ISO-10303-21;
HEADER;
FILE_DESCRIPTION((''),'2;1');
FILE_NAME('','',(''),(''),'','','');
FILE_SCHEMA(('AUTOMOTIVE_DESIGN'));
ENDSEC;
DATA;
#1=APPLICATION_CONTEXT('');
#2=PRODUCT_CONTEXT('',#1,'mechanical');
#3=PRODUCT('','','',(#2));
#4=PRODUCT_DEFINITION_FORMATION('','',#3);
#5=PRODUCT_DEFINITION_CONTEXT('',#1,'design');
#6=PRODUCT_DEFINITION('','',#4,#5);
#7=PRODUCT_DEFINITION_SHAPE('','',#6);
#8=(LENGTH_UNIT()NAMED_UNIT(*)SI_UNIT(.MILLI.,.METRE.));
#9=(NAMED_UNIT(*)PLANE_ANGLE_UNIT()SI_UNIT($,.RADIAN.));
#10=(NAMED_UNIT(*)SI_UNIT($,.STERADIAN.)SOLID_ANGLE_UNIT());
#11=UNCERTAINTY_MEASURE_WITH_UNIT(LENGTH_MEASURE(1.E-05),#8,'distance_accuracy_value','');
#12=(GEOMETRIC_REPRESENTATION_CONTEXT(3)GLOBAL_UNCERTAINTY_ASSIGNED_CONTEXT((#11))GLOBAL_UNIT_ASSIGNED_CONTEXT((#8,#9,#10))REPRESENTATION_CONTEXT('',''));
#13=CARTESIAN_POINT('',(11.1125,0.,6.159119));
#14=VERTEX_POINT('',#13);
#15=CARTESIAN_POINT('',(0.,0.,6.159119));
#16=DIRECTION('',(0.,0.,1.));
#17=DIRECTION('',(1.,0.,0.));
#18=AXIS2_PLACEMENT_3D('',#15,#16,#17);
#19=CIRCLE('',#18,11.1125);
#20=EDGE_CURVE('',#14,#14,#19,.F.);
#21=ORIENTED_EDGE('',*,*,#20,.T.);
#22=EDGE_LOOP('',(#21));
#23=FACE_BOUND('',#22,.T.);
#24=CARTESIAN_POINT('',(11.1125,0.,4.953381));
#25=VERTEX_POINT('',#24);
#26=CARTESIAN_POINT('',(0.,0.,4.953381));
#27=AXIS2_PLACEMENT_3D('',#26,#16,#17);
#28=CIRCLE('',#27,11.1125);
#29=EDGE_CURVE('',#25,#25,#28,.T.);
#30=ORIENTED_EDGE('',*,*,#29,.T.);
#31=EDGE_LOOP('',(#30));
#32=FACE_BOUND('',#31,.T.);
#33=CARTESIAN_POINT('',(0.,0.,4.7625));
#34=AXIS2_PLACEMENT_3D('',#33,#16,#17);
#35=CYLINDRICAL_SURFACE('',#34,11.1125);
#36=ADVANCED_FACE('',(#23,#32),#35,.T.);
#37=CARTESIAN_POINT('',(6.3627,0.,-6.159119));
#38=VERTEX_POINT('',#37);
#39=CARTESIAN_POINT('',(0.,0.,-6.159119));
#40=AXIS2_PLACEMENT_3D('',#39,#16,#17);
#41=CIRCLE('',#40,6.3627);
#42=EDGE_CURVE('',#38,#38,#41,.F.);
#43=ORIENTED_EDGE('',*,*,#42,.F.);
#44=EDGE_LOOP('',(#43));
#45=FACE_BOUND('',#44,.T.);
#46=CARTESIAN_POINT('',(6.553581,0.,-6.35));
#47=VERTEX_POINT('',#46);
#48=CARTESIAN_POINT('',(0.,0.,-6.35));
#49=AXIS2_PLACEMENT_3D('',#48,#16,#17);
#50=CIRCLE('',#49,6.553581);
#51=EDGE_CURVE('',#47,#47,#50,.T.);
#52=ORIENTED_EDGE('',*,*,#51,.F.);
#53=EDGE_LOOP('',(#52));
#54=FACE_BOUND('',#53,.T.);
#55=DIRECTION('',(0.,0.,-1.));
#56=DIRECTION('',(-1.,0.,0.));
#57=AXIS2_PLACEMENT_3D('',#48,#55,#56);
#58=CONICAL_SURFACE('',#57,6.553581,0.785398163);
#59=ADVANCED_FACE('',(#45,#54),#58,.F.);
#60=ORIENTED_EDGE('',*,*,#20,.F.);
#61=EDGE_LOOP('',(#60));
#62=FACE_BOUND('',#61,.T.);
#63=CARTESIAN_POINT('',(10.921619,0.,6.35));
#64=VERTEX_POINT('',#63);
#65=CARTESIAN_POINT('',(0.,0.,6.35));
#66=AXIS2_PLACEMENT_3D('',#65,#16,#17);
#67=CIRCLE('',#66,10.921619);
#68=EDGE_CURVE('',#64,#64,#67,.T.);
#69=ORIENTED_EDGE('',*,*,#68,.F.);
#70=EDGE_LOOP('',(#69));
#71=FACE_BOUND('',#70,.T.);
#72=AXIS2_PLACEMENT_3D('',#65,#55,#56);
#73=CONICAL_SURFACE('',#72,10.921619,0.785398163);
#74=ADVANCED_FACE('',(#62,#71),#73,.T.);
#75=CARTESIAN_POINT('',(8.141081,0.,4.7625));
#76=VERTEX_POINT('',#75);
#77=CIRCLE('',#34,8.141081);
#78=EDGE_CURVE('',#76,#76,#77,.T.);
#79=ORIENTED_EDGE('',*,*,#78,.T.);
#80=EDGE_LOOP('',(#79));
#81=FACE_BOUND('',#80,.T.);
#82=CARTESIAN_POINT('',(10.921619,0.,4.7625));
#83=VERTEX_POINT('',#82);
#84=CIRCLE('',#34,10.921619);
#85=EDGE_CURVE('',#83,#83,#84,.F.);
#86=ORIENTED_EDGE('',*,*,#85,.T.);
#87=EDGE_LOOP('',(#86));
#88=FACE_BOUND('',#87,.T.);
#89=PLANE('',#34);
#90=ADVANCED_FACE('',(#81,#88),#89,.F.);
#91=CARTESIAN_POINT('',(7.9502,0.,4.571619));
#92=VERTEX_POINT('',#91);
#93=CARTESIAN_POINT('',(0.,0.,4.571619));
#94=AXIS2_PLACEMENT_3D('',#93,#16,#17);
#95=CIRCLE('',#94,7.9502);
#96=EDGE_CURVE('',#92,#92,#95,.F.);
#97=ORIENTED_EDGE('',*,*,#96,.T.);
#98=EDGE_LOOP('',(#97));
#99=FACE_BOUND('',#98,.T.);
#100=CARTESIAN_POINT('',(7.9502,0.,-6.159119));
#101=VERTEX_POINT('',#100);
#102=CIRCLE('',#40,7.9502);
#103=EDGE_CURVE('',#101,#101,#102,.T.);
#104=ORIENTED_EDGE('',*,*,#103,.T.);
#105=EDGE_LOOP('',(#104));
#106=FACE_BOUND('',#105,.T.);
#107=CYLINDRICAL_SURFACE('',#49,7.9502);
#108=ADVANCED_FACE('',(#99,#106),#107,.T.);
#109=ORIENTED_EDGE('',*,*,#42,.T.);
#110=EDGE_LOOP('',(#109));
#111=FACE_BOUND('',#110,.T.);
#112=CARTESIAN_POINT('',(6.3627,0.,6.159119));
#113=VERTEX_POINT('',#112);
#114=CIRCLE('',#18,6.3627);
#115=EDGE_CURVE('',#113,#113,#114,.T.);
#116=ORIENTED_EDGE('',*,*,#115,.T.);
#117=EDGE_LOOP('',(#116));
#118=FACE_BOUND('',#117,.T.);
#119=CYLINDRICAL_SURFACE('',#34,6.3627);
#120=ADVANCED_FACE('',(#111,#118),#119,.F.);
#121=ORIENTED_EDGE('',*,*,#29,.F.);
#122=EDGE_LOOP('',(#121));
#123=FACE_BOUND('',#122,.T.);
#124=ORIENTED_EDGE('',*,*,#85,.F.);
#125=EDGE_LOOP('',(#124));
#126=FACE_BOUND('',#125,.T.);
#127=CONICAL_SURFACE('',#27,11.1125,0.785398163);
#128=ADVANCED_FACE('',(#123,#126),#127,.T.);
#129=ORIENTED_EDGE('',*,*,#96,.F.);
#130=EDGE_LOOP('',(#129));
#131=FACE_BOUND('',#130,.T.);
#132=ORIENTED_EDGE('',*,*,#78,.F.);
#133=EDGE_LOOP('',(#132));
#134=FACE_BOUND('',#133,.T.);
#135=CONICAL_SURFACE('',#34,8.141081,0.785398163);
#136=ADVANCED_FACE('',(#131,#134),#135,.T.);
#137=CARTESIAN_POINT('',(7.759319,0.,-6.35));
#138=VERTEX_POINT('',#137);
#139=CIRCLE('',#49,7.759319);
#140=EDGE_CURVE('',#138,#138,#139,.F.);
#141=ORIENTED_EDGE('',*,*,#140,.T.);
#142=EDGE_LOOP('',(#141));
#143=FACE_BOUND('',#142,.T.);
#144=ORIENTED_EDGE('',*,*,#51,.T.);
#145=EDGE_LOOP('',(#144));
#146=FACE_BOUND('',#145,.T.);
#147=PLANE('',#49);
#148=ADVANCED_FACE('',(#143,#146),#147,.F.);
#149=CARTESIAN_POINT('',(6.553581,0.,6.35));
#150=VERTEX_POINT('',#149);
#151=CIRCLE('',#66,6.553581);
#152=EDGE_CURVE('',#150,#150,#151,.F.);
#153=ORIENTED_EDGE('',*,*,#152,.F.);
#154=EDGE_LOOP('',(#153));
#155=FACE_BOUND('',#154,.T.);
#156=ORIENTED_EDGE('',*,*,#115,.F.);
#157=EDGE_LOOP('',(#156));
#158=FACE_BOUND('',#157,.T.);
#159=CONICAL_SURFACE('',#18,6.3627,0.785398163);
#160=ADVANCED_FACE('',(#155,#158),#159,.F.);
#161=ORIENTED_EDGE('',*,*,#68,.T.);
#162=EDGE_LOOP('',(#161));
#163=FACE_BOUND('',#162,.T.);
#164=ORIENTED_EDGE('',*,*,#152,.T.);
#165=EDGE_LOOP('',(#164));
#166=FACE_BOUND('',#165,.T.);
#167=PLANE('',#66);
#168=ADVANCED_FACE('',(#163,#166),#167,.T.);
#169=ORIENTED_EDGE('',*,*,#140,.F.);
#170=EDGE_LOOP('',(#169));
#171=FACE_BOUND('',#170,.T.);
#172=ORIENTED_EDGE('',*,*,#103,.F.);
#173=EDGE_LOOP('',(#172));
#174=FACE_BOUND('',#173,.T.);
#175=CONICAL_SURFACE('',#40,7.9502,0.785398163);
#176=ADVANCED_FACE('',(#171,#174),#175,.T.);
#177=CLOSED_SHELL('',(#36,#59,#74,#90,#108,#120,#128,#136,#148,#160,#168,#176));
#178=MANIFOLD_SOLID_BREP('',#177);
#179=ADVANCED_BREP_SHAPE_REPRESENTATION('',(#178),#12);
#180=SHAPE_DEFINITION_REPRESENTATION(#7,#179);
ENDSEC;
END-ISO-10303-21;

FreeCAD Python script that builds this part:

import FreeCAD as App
import Part
import Sketcher

V = App.Vector
Q = App.Units.Quantity


def edges_at(feature, points):
    """Names of the edges that pass closest to the given points."""
    edges = feature.Shape.Edges
    near = lambda p: min(range(len(edges)), key=lambda i: edges[i].distToShape(Part.Vertex(*p))[0])
    return sorted({f"Edge{near(p) + 1}" for p in points})

doc = App.newDocument("Part")
body = doc.addObject("PartDesign::Body", "Body")

# Sketch on XY plane
sketch1 = doc.addObject("Sketcher::SketchObject", "Sketch")
body.addObject(sketch1)
sketch1.AttachmentSupport = (doc.XY_Plane, [""])
sketch1.MapMode = "FlatFace"
sketch1.AttachmentOffset = App.Placement(V(0, 0, 0.25 * 25.4), App.Rotation())
sketch1.addGeometry(Part.Circle(V(0, 0, 0), V(0, 0, 1), 11), False)
sketch1.addGeometry(Part.Circle(V(0, 0, 0), V(0, 0, 1), 6), False)
sketch1.addConstraint(Sketcher.Constraint("Coincident", 0, 3, -1, 1))
sketch1.addConstraint(Sketcher.Constraint("Coincident", 1, 3, -1, 1))
sketch1.addConstraint(Sketcher.Constraint("Diameter", 0, Q("0.875 in")))
sketch1.addConstraint(Sketcher.Constraint("Diameter", 1, Q("0.501 in")))
pad1 = doc.addObject("PartDesign::Pad", "Pad")
body.addObject(pad1)
pad1.Profile = sketch1
pad1.Length = Q("0.0625 in")
pad1.Reversed = True

# Sketch on XY plane
sketch2 = doc.addObject("Sketcher::SketchObject", "Sketch001")
body.addObject(sketch2)
sketch2.AttachmentSupport = (doc.XY_Plane, [""])
sketch2.MapMode = "FlatFace"
sketch2.AttachmentOffset = App.Placement(V(0, 0, 0.1875 * 25.4), App.Rotation())
sketch2.addGeometry(Part.Circle(V(0, 0, 0), V(0, 0, 1), 8), False)
sketch2.addGeometry(Part.Circle(V(0, 0, 0), V(0, 0, 1), 6), False)
sketch2.addConstraint(Sketcher.Constraint("Coincident", 0, 3, -1, 1))
sketch2.addConstraint(Sketcher.Constraint("Coincident", 1, 3, -1, 1))
sketch2.addConstraint(Sketcher.Constraint("Diameter", 0, Q("0.626 in")))
sketch2.addConstraint(Sketcher.Constraint("Diameter", 1, Q("0.501 in")))
pad2 = doc.addObject("PartDesign::Pad", "Pad001")
body.addObject(pad2)
pad2.Profile = sketch2
pad2.Length = Q("0.4375 in")
pad2.Reversed = True
doc.recompute()

chamfer = doc.addObject("PartDesign::Chamfer", "Chamfer")
body.addObject(chamfer)
chamfer.Base = (pad2, edges_at(pad2, [
    (-6.363, 0, -6.35),
    (-7.95, 0, 4.763),
    (-11.113, 0, 6.35),
    (-11.113, 0, 4.763),
    (-6.363, 0, 6.35),
    (-7.95, 0, -6.35),
]))
chamfer.Size = 0.190881

doc.recompute()
